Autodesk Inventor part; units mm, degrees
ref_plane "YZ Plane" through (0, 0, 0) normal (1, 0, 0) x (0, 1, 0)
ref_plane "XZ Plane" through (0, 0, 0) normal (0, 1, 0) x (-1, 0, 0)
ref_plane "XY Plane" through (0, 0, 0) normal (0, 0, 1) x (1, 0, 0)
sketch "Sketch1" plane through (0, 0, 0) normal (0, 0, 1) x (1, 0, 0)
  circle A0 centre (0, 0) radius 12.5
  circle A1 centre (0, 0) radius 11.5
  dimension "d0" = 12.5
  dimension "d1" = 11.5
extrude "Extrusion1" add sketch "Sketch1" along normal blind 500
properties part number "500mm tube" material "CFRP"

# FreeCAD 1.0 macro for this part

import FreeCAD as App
import Part
import Sketcher
from FreeCAD import Vector
Q = App.Units.Quantity

doc = App.newDocument("Part")
body = doc.addObject("PartDesign::Body", "Body")

sketch1 = body.newObject("Sketcher::SketchObject", "Sketch")
sketch1.AttachmentSupport = (doc.getObject("XY_Plane"), [""])
sketch1.MapMode = "FlatFace"
sketch1.addGeometry([
    Part.Circle(Vector(0, 0, 0), Vector(0, 0, 1), 12.5),
    Part.Circle(Vector(0, 0, 0), Vector(0, 0, 1), 11.5),
], False)
sketch1.addConstraint([
    Sketcher.Constraint("Coincident", 0, 3, -1, 1),
    Sketcher.Constraint("Coincident", 1, 3, -1, 1),
    Sketcher.Constraint("Diameter", 0, Q("25 mm")),
    Sketcher.Constraint("Diameter", 1, Q("23 mm")),
])
pad1 = body.newObject("PartDesign::Pad", "Pad")
pad1.Profile = sketch1
pad1.Length = 500

doc.recompute()
